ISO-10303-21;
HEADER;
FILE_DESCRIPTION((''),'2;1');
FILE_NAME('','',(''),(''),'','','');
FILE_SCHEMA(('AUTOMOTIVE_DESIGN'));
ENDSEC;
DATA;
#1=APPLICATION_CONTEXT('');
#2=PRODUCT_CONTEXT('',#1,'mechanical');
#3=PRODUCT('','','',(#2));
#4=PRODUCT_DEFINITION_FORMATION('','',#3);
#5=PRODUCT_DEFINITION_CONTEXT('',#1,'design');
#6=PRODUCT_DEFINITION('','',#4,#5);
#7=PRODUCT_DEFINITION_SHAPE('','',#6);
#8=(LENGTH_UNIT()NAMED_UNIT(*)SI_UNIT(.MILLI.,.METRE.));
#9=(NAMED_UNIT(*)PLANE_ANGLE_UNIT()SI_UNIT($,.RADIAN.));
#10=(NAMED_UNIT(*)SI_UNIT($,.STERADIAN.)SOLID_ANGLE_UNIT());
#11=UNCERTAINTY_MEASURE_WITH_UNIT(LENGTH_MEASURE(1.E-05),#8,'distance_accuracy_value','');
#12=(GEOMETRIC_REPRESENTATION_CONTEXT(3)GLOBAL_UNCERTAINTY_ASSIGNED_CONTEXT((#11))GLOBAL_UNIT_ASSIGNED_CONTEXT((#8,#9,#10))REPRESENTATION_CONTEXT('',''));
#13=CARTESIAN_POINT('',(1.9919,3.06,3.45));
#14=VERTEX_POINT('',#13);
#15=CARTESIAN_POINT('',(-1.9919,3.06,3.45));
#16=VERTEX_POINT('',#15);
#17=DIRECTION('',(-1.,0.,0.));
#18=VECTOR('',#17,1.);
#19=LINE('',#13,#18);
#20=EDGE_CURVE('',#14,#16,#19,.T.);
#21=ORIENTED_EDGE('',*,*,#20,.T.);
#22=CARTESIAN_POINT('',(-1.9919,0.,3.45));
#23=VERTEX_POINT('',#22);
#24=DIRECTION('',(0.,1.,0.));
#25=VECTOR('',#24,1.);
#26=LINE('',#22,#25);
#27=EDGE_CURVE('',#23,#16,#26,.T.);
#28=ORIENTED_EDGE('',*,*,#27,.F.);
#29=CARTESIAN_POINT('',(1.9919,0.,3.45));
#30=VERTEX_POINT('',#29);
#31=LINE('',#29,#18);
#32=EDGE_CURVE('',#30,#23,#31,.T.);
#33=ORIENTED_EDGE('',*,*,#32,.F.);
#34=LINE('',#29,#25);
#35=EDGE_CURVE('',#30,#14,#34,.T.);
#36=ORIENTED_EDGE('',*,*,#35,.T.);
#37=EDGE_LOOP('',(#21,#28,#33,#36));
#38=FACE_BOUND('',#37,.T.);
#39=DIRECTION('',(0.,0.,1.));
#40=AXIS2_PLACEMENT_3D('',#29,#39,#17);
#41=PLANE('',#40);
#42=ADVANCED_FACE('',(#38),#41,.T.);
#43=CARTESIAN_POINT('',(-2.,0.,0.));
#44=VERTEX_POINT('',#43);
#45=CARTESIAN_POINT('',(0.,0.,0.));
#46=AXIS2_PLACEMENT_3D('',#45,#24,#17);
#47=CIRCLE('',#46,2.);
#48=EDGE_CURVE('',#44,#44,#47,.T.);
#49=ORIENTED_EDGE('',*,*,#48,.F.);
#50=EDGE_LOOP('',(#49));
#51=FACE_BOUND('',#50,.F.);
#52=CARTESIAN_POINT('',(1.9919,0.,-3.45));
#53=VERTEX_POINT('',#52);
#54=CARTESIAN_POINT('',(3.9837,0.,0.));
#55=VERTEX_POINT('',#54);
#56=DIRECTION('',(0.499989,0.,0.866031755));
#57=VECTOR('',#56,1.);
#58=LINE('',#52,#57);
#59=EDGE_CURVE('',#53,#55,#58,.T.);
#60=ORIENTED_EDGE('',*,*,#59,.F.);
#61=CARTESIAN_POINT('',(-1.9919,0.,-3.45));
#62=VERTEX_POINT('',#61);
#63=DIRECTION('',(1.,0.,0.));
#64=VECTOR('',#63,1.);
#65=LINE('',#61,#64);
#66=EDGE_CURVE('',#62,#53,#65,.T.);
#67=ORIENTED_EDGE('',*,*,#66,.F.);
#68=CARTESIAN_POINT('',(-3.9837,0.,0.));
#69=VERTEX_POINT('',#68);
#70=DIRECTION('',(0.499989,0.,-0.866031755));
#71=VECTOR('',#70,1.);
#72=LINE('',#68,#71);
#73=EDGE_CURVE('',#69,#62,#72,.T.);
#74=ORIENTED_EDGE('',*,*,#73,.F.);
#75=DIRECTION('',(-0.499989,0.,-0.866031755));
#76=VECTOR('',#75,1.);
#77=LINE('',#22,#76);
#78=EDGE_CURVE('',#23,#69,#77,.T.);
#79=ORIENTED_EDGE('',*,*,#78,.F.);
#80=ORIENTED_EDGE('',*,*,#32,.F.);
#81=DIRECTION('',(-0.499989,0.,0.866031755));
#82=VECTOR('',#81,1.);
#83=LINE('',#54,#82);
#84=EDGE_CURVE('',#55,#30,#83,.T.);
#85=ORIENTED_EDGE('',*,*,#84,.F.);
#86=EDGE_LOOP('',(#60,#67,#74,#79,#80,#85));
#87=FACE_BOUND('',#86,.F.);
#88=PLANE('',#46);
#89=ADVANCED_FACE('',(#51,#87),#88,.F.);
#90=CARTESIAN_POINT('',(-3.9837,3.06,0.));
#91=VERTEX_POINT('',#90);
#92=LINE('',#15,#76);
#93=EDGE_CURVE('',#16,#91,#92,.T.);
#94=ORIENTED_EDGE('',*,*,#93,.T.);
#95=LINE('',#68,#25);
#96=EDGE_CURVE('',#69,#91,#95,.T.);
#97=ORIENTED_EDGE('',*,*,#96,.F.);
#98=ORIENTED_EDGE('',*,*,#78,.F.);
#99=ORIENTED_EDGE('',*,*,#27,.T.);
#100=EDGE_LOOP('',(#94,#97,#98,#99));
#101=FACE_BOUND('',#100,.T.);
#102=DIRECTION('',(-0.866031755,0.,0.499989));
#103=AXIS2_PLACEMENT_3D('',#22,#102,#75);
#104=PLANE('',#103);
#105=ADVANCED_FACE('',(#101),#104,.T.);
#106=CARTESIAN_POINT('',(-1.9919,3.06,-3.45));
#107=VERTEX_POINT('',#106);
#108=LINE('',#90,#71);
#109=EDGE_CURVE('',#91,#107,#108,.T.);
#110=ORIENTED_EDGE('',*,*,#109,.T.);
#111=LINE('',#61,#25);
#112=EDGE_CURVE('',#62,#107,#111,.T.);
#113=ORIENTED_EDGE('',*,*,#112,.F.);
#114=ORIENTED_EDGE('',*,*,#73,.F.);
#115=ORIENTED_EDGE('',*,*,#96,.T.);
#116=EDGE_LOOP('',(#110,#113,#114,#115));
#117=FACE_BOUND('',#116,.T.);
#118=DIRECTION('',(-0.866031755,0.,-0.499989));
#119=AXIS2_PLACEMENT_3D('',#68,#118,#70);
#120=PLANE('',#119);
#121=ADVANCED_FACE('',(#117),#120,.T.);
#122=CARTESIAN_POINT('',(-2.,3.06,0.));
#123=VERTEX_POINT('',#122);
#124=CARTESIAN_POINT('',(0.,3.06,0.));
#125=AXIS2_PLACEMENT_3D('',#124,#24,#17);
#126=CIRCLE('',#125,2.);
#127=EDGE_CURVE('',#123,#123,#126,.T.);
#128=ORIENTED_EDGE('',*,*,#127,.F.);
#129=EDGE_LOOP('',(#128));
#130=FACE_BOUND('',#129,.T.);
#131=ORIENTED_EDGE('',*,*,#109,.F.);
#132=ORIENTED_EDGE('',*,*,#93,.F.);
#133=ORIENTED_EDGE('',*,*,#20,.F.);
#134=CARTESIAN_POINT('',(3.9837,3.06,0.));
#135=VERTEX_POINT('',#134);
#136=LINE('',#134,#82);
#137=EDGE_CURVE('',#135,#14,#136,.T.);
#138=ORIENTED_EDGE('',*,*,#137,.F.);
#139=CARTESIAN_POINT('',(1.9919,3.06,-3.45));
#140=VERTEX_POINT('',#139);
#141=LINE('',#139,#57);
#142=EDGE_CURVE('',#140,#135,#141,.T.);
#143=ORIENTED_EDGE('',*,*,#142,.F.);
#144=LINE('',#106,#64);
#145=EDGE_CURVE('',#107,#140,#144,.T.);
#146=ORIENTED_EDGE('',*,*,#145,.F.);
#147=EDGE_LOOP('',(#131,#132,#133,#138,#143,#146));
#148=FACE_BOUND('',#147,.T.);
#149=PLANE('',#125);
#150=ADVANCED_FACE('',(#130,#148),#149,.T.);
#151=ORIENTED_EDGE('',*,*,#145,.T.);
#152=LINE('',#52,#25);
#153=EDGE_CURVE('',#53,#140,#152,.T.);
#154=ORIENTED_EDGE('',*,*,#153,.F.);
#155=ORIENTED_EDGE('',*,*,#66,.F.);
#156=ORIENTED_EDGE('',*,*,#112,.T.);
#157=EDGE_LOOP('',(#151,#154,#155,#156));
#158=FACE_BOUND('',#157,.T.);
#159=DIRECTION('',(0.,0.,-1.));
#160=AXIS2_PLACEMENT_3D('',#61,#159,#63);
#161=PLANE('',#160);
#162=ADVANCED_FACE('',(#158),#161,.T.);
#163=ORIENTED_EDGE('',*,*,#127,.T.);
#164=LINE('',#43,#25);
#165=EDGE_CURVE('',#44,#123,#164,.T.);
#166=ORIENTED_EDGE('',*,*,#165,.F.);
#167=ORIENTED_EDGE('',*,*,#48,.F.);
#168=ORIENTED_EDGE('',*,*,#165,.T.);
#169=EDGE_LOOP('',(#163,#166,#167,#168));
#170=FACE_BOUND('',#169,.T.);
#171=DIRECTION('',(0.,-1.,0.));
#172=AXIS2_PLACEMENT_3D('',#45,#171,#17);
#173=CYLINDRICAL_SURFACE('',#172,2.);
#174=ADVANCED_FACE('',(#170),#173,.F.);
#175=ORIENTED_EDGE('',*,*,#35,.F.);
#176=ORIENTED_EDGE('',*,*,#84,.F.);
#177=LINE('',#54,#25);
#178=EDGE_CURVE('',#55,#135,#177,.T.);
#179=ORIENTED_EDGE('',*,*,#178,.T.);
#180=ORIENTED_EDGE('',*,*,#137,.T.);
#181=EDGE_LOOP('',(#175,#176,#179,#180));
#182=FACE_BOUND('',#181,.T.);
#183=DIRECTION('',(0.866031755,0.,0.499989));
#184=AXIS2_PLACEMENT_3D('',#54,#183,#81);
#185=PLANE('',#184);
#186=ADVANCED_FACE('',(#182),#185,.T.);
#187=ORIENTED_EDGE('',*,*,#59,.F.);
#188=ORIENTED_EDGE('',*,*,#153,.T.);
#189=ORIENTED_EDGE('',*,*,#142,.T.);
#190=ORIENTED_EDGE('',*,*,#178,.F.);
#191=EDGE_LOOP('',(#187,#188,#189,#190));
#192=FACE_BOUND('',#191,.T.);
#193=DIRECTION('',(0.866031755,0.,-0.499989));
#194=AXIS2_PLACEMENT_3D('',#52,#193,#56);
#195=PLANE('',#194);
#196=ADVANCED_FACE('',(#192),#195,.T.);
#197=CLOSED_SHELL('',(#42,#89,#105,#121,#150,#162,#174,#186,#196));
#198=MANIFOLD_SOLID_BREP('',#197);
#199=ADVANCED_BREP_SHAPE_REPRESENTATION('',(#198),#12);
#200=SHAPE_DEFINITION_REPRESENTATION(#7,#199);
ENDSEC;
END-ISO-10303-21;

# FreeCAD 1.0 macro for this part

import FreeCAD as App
import Part
import Sketcher

V = App.Vector
Q = App.Units.Quantity

doc = App.newDocument("Part")
body = doc.addObject("PartDesign::Body", "Body")

# Sketch on XZ plane
sketch1 = body.newObject("Sketcher::SketchObject", "Sketch")
sketch1.AttachmentSupport = (doc.getObject("XZ_Plane"), [""])
sketch1.MapMode = "FlatFace"
sketch1.addGeometry(Part.LineSegment(V(3.9837, 0, 0), V(1.9919, -3.45, 0)), False)
sketch1.addGeometry(Part.LineSegment(V(1.9919, -3.45, 0), V(-1.9919, -3.45, 0)), False)
sketch1.addGeometry(Part.LineSegment(V(-1.9919, -3.45, 0), V(-3.9837, 0, 0)), False)
sketch1.addGeometry(Part.LineSegment(V(-3.9837, 0, 0), V(-1.9919, 3.45, 0)), False)
sketch1.addGeometry(Part.LineSegment(V(-1.9919, 3.45, 0), V(1.9919, 3.45, 0)), False)
sketch1.addGeometry(Part.LineSegment(V(1.9919, 3.45, 0), V(3.9837, 0, 0)), False)
sketch1.addGeometry(Part.Circle(V(0, 0, 0), V(0, 0, 1), 2), False)
sketch1.addConstraint(Sketcher.Constraint("Coincident", 0, 2, 1, 1))
sketch1.addConstraint(Sketcher.Constraint("Coincident", 1, 2, 2, 1))
sketch1.addConstraint(Sketcher.Constraint("Coincident", 2, 2, 3, 1))
sketch1.addConstraint(Sketcher.Constraint("Coincident", 3, 2, 4, 1))
sketch1.addConstraint(Sketcher.Constraint("Coincident", 4, 2, 5, 1))
sketch1.addConstraint(Sketcher.Constraint("Coincident", 5, 2, 0, 1))
sketch1.addConstraint(Sketcher.Constraint("Horizontal", 1))
sketch1.addConstraint(Sketcher.Constraint("Horizontal", 4))
sketch1.addConstraint(Sketcher.Constraint("Coincident", 6, 3, -1, 1))
sketch1.addConstraint(Sketcher.Constraint("Symmetric", 0, 2, 3, 2, -1, 1))
sketch1.addConstraint(Sketcher.Constraint("Symmetric", 2, 2, 5, 2, -1, 1))
sketch1.addConstraint(Sketcher.Constraint("PointOnObject", 2, 2, -1))
sketch1.addConstraint(Sketcher.Constraint("Parallel", 2, 5))
sketch1.addConstraint(Sketcher.Constraint("Vertical", 1, 2, 3, 2))
sketch1.addConstraint(Sketcher.Constraint("Diameter", 6, Q("4 mm")))
sketch1.addConstraint(Sketcher.Constraint("DistanceY", 1, 2, 3, 2, Q("6.9 mm")))
sketch1.addConstraint(Sketcher.Constraint("Angle", 0, Q("-119.9993 deg")))
sketch1.addConstraint(Sketcher.Constraint("DistanceX", 1, 2, 1, 1, Q("3.9838 mm")))
pad1 = body.newObject("PartDesign::Pad", "Pad")
pad1.Profile = sketch1
pad1.Length = 3.06
pad1.Reversed = True

doc.recompute()
